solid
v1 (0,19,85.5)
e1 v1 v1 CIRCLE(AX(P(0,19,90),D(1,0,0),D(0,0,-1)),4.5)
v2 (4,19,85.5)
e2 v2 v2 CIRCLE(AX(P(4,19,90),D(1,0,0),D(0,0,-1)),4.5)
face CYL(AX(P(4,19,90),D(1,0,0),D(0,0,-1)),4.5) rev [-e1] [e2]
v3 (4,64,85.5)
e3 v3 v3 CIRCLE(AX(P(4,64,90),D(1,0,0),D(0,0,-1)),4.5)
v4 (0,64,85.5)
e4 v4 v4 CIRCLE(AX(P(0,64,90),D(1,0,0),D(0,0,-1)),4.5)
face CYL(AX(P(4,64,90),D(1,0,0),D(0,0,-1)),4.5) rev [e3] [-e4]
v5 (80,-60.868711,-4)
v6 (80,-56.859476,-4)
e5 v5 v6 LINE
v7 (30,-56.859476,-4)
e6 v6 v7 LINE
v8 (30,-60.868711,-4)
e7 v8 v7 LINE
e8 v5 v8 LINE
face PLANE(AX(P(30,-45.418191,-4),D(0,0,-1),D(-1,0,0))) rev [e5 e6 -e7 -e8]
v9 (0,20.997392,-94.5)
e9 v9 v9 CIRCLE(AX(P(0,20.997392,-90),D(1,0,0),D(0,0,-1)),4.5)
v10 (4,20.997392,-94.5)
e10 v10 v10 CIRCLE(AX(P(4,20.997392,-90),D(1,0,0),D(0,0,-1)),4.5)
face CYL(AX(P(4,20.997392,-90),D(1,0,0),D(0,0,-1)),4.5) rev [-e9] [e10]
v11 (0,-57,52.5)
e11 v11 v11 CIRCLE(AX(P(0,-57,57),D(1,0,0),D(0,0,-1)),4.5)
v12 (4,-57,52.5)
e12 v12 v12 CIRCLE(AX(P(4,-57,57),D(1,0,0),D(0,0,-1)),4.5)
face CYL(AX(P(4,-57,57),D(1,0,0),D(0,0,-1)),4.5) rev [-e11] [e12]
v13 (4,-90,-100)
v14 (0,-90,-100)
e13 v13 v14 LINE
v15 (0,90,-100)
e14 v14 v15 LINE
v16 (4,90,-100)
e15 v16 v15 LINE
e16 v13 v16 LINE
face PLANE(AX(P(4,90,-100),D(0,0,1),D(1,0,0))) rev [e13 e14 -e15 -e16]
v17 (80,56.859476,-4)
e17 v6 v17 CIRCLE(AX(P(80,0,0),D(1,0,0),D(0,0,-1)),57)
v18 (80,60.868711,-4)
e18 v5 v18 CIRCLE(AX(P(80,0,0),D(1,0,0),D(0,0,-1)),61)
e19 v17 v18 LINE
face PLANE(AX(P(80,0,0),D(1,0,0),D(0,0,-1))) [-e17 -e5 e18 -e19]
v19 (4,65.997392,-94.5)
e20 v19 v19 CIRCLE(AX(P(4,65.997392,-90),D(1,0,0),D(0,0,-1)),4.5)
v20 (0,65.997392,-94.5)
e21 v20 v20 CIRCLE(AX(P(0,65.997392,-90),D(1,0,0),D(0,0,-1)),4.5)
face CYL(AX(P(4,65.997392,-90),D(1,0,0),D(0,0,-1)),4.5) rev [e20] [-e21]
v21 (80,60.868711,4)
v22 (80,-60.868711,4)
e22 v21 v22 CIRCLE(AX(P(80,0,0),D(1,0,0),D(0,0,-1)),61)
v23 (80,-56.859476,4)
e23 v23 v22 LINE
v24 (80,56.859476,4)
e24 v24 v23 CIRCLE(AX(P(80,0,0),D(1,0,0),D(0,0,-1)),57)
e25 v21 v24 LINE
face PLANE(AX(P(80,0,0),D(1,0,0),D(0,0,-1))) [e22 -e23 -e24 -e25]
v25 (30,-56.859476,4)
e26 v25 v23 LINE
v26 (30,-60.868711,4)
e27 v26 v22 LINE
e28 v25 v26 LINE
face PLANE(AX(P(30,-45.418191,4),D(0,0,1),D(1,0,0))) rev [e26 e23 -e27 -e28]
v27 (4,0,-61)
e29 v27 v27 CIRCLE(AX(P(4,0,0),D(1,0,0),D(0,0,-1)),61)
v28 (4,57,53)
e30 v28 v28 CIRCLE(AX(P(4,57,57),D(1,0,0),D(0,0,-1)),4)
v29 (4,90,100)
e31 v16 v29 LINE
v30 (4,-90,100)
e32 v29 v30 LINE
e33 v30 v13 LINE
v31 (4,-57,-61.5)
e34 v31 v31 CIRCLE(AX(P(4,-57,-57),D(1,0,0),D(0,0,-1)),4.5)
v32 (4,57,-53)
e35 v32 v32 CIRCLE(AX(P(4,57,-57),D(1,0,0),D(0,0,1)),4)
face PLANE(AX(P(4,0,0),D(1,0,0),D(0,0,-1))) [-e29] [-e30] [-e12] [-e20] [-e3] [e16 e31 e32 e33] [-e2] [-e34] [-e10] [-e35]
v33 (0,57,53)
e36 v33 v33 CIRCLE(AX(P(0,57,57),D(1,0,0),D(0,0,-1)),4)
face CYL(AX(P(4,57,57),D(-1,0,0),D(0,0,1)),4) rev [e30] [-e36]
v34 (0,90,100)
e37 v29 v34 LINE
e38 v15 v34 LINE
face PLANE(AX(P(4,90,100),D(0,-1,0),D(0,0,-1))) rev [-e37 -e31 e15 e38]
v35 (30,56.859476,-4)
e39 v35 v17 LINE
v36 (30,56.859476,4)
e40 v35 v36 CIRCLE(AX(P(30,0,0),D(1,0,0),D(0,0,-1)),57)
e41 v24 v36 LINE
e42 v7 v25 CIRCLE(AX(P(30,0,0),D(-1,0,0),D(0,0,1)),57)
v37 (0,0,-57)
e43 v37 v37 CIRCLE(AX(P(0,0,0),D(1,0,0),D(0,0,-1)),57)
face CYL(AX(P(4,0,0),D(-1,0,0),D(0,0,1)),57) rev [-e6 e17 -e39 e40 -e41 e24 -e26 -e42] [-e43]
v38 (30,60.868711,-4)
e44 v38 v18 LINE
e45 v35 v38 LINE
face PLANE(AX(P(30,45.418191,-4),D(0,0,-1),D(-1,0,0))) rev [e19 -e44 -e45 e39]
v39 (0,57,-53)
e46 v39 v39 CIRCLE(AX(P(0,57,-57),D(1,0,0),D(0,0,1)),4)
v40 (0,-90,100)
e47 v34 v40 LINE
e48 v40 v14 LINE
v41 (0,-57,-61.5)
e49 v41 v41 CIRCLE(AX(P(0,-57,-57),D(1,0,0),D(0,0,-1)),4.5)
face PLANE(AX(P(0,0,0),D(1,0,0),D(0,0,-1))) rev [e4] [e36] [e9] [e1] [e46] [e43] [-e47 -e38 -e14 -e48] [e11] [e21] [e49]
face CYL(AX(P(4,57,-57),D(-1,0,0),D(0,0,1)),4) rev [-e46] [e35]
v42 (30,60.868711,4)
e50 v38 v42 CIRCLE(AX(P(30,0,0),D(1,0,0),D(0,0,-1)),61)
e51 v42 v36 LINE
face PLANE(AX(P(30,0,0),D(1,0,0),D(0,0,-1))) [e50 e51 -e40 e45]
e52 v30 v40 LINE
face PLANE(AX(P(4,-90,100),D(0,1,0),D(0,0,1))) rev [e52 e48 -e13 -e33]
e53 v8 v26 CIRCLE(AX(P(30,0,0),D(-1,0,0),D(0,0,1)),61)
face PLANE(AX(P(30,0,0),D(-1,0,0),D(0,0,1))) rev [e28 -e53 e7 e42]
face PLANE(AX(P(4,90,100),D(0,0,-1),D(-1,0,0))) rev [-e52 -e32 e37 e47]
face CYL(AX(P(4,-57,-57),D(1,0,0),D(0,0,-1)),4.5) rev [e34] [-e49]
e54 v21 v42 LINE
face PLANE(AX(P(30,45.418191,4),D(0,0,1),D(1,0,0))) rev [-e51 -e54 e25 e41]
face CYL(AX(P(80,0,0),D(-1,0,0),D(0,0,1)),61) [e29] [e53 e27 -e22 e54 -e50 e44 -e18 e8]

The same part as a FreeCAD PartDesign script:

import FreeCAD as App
import Part
import Sketcher
from FreeCAD import Vector
Q = App.Units.Quantity

doc = App.newDocument("Part")
body = doc.addObject("PartDesign::Body", "Body")

# Sketch on YZ plane
sketch1 = doc.addObject("Sketcher::SketchObject", "Sketch")
body.addObject(sketch1)
sketch1.AttachmentSupport = (doc.YZ_Plane, [""])
sketch1.MapMode = "FlatFace"
sketch1.addGeometry([
    Part.LineSegment(Vector(90, 100, 0), Vector(-90, 100, 0)),  # 0
    Part.LineSegment(Vector(-90, 100, 0), Vector(-90, -100, 0)),  # 1
    Part.LineSegment(Vector(-90, -100, 0), Vector(90, -100, 0)),  # 2
    Part.LineSegment(Vector(90, -100, 0), Vector(90, 100, 0)),  # 3
    Part.Circle(Vector(-57, 57, 0), Vector(0, 0, 1), 4),  # 4
    Part.Circle(Vector(-57, -57, 0), Vector(0, 0, 1), 4),  # 5
    Part.Circle(Vector(57, 57, 0), Vector(0, 0, 1), 4),  # 6
    Part.Circle(Vector(0, 0, 0), Vector(0, 0, 1), 57),  # 7
    Part.Circle(Vector(57, -57, 0), Vector(0, 0, 1), 4),  # 8
], False)
sketch1.addConstraint([
    Sketcher.Constraint("Coincident", 0, 2, 1, 1),
    Sketcher.Constraint("Coincident", 1, 2, 2, 1),
    Sketcher.Constraint("Coincident", 2, 2, 3, 1),
    Sketcher.Constraint("Coincident", 3, 2, 0, 1),
    Sketcher.Constraint("Horizontal", 0),
    Sketcher.Constraint("Vertical", 1),
    Sketcher.Constraint("Horizontal", 2),
    Sketcher.Constraint("Vertical", 3),
    Sketcher.Constraint("Coincident", 7, 3, -1, 1),
    Sketcher.Constraint("Equal", 4, 5),
    Sketcher.Constraint("Equal", 5, 6),
    Sketcher.Constraint("Equal", 6, 8),
    Sketcher.Constraint("Symmetric", 5, 3, 6, 3, -1, 1),
    Sketcher.Constraint("Symmetric", 4, 3, 8, 3, -1, 1),
    Sketcher.Constraint("Symmetric", 0, 2, 2, 2, -1, 1),
    Sketcher.Constraint("Symmetric", 4, 3, 6, 3, -2),
    Sketcher.Constraint("Diameter", 4, Q("8 mm")),
    Sketcher.Constraint("Diameter", 7, Q("114 mm")),
    Sketcher.Constraint("DistanceX", 0, 2, 0, 1, Q("180 mm")),
    Sketcher.Constraint("DistanceY", 1, 2, 1, 1, Q("200 mm")),
    Sketcher.Constraint("DistanceX", 4, 3, -1, 1, Q("57 mm")),
    Sketcher.Constraint("DistanceY", -1, 1, 4, 3, Q("57 mm")),
])
pad1 = doc.addObject("PartDesign::Pad", "Pad")
body.addObject(pad1)
pad1.Profile = sketch1
pad1.Length = 4

# Sketch on YZ plane
sketch2 = doc.addObject("Sketcher::SketchObject", "Sketch001")
body.addObject(sketch2)
sketch2.AttachmentSupport = (doc.YZ_Plane, [""])
sketch2.MapMode = "FlatFace"
sketch2.AttachmentOffset = App.Placement(Vector(0, 0, 4), App.Rotation())
sketch2.addGeometry([
    Part.Circle(Vector(0, 0, 0), Vector(0, 0, 1), 61),
    Part.Circle(Vector(0, 0, 0), Vector(0, 0, 1), 57),
], False)
sketch2.addConstraint([
    Sketcher.Constraint("Coincident", 0, 3, -1, 1),
    Sketcher.Constraint("Coincident", 1, 3, -1, 1),
    Sketcher.Constraint("Diameter", 0, Q("122 mm")),
    Sketcher.Constraint("Diameter", 1, Q("114 mm")),
])
pad2 = doc.addObject("PartDesign::Pad", "Pad001")
body.addObject(pad2)
pad2.Profile = sketch2
pad2.Length = 76

# Sketch on YZ plane
sketch3 = doc.addObject("Sketcher::SketchObject", "Sketch002")
body.addObject(sketch3)
sketch3.AttachmentSupport = (doc.YZ_Plane, [""])
sketch3.MapMode = "FlatFace"
sketch3.AttachmentOffset = App.Placement(Vector(0, 0, 80), App.Rotation())
sketch3.addGeometry([
    Part.LineSegment(Vector(69, 4, 0), Vector(45, 4, 0)),  # 0
    Part.LineSegment(Vector(45, 4, 0), Vector(45, -4, 0)),  # 1
    Part.LineSegment(Vector(45, -4, 0), Vector(69, -4, 0)),  # 2
    Part.LineSegment(Vector(69, -4, 0), Vector(69, 4, 0)),  # 3
    Part.LineSegment(Vector(-45, 4, 0), Vector(-69, 4, 0)),  # 4
    Part.LineSegment(Vector(-69, 4, 0), Vector(-69, -4, 0)),  # 5
    Part.LineSegment(Vector(-69, -4, 0), Vector(-45, -4, 0)),  # 6
    Part.LineSegment(Vector(-45, -4, 0), Vector(-45, 4, 0)),  # 7
], False)
sketch3.addConstraint([
    Sketcher.Constraint("Coincident", 0, 2, 1, 1),
    Sketcher.Constraint("Coincident", 1, 2, 2, 1),
    Sketcher.Constraint("Coincident", 2, 2, 3, 1),
    Sketcher.Constraint("Coincident", 3, 2, 0, 1),
    Sketcher.Constraint("Coincident", 4, 2, 5, 1),
    Sketcher.Constraint("Coincident", 5, 2, 6, 1),
    Sketcher.Constraint("Coincident", 6, 2, 7, 1),
    Sketcher.Constraint("Coincident", 7, 2, 4, 1),
    Sketcher.Constraint("Horizontal", 0),
    Sketcher.Constraint("Vertical", 1),
    Sketcher.Constraint("Horizontal", 2),
    Sketcher.Constraint("Vertical", 3),
    Sketcher.Constraint("Horizontal", 4),
    Sketcher.Constraint("Vertical", 5),
    Sketcher.Constraint("Horizontal", 6),
    Sketcher.Constraint("Vertical", 7),
    Sketcher.Constraint("Symmetric", 2, 2, 4, 2, -1, 1),
    Sketcher.Constraint("Symmetric", 0, 2, 6, 2, -1, 1),
    Sketcher.Constraint("Horizontal", 3, 2, 4, 2),
    Sketcher.Constraint("DistanceY", 1, 2, 1, 1, Q("8 mm")),
    Sketcher.Constraint("DistanceX", 4, 2, 0, 2, Q("114 mm")),
    Sketcher.Constraint("DistanceX", 0, 2, 0, 1, Q("23.163618 mm")),
])
pocket1 = doc.addObject("PartDesign::Pocket", "Pocket")
body.addObject(pocket1)
pocket1.Profile = sketch3
pocket1.Length = 50

# Sketch on YZ plane
sketch4 = doc.addObject("Sketcher::SketchObject", "Sketch003")
body.addObject(sketch4)
sketch4.AttachmentSupport = (doc.YZ_Plane, [""])
sketch4.MapMode = "FlatFace"
sketch4.AttachmentOffset = App.Placement(Vector(0, 0, 4), App.Rotation())
sketch4.addGeometry([
    Part.Circle(Vector(64, 90, 0), Vector(0, 0, 1), 4.5),  # 0
    Part.Circle(Vector(19, 90, 0), Vector(0, 0, 1), 4.5),  # 1
    Part.Circle(Vector(66, -90, 0), Vector(0, 0, 1), 4.5),  # 2
    Part.Circle(Vector(21, -90, 0), Vector(0, 0, 1), 4.5),  # 3
    Part.Circle(Vector(-57, -57, 0), Vector(0, 0, 1), 4.5),  # 4
    Part.Circle(Vector(-57, 57, 0), Vector(0, 0, 1), 4.5),  # 5
], False)
sketch4.addConstraint([
    Sketcher.Constraint("Equal", 0, 1),
    Sketcher.Constraint("Equal", 1, 2),
    Sketcher.Constraint("Equal", 2, 3),
    Sketcher.Constraint("Equal", 3, 4),
    Sketcher.Constraint("Equal", 4, 5),
    Sketcher.Constraint("Symmetric", 4, 3, 5, 3, -1),
    Sketcher.Constraint("Horizontal", 0, 3, 1, 3),
    Sketcher.Constraint("Horizontal", 2, 3, 3, 3),
    Sketcher.Constraint("Diameter", 0, Q("9 mm")),
    Sketcher.Constraint("DistanceX", -1, 1, 0, 3, Q("64 mm")),
    Sketcher.Constraint("DistanceY", -1, 1, 0, 3, Q("90 mm")),
    Sketcher.Constraint("DistanceX", -1, 1, 1, 3, Q("19 mm")),
    Sketcher.Constraint("DistanceY", 2, 3, -1, 1, Q("90 mm")),
    Sketcher.Constraint("DistanceX", 4, 3, -1, 1, Q("57 mm")),
    Sketcher.Constraint("DistanceY", 4, 3, -1, 1, Q("57 mm")),
    Sketcher.Constraint("DistanceX", 3, 3, 2, 3, Q("45 mm")),
    Sketcher.Constraint("DistanceX", -1, 1, 2, 3, Q("65.997392 mm")),
])
doc.recompute()
hole = doc.addObject("PartDesign::Hole", "Hole")
body.addObject(hole)
hole.Profile = sketch4
hole.ThreadType = "None"
hole.Diameter = 9
hole.DepthType = "Dimension"
hole.Depth = 4.999
hole.DrillPoint = "Flat"

doc.recompute()
